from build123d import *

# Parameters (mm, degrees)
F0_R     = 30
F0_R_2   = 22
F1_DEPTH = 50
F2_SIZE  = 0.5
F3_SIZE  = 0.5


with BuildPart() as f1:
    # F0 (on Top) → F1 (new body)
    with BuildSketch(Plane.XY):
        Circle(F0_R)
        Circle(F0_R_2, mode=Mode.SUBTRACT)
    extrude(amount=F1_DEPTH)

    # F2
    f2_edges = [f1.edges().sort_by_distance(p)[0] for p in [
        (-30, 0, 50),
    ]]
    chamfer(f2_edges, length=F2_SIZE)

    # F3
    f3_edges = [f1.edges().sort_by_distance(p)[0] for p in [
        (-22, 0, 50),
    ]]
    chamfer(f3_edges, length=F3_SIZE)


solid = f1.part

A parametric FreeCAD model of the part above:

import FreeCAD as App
import Part
import Sketcher
from FreeCAD import Vector
Q = App.Units.Quantity


def edges_at(feature, points):
    """Names of the edges that pass closest to the given points."""
    edges = feature.Shape.Edges
    near = lambda p: min(range(len(edges)), key=lambda i: edges[i].distToShape(Part.Vertex(*p))[0])
    return sorted({f"Edge{near(p) + 1}" for p in points})

doc = App.newDocument("Part")
body = doc.addObject("PartDesign::Body", "Body")

# Sketch on XY plane
sketch1 = body.newObject("Sketcher::SketchObject", "Sketch")
sketch1.AttachmentSupport = (doc.getObject("XY_Plane"), [""])
sketch1.MapMode = "FlatFace"
sketch1.addGeometry([
    Part.Circle(Vector(0, 0, 0), Vector(0, 0, 1), 30),
    Part.Circle(Vector(0, 0, 0), Vector(0, 0, 1), 22),
], False)
sketch1.addConstraint([
    Sketcher.Constraint("Coincident", 0, 3, -1, 1),
    Sketcher.Constraint("Coincident", 1, 3, -1, 1),
    Sketcher.Constraint("Diameter", 0, Q("60 mm")),
    Sketcher.Constraint("Diameter", 1, Q("44 mm")),
])
pad1 = body.newObject("PartDesign::Pad", "Pad")
pad1.Profile = sketch1
pad1.Length = 50
doc.recompute()

chamfer = body.newObject("PartDesign::Chamfer", "Chamfer")
chamfer.Base = (pad1, edges_at(pad1, [(-30, 0, 50)]))
chamfer.Size = 0.5
doc.recompute()

chamfer2 = body.newObject("PartDesign::Chamfer", "Chamfer001")
chamfer2.Base = (chamfer, edges_at(chamfer, [(-22, 0, 50)]))
chamfer2.Size = 0.5

doc.recompute()
